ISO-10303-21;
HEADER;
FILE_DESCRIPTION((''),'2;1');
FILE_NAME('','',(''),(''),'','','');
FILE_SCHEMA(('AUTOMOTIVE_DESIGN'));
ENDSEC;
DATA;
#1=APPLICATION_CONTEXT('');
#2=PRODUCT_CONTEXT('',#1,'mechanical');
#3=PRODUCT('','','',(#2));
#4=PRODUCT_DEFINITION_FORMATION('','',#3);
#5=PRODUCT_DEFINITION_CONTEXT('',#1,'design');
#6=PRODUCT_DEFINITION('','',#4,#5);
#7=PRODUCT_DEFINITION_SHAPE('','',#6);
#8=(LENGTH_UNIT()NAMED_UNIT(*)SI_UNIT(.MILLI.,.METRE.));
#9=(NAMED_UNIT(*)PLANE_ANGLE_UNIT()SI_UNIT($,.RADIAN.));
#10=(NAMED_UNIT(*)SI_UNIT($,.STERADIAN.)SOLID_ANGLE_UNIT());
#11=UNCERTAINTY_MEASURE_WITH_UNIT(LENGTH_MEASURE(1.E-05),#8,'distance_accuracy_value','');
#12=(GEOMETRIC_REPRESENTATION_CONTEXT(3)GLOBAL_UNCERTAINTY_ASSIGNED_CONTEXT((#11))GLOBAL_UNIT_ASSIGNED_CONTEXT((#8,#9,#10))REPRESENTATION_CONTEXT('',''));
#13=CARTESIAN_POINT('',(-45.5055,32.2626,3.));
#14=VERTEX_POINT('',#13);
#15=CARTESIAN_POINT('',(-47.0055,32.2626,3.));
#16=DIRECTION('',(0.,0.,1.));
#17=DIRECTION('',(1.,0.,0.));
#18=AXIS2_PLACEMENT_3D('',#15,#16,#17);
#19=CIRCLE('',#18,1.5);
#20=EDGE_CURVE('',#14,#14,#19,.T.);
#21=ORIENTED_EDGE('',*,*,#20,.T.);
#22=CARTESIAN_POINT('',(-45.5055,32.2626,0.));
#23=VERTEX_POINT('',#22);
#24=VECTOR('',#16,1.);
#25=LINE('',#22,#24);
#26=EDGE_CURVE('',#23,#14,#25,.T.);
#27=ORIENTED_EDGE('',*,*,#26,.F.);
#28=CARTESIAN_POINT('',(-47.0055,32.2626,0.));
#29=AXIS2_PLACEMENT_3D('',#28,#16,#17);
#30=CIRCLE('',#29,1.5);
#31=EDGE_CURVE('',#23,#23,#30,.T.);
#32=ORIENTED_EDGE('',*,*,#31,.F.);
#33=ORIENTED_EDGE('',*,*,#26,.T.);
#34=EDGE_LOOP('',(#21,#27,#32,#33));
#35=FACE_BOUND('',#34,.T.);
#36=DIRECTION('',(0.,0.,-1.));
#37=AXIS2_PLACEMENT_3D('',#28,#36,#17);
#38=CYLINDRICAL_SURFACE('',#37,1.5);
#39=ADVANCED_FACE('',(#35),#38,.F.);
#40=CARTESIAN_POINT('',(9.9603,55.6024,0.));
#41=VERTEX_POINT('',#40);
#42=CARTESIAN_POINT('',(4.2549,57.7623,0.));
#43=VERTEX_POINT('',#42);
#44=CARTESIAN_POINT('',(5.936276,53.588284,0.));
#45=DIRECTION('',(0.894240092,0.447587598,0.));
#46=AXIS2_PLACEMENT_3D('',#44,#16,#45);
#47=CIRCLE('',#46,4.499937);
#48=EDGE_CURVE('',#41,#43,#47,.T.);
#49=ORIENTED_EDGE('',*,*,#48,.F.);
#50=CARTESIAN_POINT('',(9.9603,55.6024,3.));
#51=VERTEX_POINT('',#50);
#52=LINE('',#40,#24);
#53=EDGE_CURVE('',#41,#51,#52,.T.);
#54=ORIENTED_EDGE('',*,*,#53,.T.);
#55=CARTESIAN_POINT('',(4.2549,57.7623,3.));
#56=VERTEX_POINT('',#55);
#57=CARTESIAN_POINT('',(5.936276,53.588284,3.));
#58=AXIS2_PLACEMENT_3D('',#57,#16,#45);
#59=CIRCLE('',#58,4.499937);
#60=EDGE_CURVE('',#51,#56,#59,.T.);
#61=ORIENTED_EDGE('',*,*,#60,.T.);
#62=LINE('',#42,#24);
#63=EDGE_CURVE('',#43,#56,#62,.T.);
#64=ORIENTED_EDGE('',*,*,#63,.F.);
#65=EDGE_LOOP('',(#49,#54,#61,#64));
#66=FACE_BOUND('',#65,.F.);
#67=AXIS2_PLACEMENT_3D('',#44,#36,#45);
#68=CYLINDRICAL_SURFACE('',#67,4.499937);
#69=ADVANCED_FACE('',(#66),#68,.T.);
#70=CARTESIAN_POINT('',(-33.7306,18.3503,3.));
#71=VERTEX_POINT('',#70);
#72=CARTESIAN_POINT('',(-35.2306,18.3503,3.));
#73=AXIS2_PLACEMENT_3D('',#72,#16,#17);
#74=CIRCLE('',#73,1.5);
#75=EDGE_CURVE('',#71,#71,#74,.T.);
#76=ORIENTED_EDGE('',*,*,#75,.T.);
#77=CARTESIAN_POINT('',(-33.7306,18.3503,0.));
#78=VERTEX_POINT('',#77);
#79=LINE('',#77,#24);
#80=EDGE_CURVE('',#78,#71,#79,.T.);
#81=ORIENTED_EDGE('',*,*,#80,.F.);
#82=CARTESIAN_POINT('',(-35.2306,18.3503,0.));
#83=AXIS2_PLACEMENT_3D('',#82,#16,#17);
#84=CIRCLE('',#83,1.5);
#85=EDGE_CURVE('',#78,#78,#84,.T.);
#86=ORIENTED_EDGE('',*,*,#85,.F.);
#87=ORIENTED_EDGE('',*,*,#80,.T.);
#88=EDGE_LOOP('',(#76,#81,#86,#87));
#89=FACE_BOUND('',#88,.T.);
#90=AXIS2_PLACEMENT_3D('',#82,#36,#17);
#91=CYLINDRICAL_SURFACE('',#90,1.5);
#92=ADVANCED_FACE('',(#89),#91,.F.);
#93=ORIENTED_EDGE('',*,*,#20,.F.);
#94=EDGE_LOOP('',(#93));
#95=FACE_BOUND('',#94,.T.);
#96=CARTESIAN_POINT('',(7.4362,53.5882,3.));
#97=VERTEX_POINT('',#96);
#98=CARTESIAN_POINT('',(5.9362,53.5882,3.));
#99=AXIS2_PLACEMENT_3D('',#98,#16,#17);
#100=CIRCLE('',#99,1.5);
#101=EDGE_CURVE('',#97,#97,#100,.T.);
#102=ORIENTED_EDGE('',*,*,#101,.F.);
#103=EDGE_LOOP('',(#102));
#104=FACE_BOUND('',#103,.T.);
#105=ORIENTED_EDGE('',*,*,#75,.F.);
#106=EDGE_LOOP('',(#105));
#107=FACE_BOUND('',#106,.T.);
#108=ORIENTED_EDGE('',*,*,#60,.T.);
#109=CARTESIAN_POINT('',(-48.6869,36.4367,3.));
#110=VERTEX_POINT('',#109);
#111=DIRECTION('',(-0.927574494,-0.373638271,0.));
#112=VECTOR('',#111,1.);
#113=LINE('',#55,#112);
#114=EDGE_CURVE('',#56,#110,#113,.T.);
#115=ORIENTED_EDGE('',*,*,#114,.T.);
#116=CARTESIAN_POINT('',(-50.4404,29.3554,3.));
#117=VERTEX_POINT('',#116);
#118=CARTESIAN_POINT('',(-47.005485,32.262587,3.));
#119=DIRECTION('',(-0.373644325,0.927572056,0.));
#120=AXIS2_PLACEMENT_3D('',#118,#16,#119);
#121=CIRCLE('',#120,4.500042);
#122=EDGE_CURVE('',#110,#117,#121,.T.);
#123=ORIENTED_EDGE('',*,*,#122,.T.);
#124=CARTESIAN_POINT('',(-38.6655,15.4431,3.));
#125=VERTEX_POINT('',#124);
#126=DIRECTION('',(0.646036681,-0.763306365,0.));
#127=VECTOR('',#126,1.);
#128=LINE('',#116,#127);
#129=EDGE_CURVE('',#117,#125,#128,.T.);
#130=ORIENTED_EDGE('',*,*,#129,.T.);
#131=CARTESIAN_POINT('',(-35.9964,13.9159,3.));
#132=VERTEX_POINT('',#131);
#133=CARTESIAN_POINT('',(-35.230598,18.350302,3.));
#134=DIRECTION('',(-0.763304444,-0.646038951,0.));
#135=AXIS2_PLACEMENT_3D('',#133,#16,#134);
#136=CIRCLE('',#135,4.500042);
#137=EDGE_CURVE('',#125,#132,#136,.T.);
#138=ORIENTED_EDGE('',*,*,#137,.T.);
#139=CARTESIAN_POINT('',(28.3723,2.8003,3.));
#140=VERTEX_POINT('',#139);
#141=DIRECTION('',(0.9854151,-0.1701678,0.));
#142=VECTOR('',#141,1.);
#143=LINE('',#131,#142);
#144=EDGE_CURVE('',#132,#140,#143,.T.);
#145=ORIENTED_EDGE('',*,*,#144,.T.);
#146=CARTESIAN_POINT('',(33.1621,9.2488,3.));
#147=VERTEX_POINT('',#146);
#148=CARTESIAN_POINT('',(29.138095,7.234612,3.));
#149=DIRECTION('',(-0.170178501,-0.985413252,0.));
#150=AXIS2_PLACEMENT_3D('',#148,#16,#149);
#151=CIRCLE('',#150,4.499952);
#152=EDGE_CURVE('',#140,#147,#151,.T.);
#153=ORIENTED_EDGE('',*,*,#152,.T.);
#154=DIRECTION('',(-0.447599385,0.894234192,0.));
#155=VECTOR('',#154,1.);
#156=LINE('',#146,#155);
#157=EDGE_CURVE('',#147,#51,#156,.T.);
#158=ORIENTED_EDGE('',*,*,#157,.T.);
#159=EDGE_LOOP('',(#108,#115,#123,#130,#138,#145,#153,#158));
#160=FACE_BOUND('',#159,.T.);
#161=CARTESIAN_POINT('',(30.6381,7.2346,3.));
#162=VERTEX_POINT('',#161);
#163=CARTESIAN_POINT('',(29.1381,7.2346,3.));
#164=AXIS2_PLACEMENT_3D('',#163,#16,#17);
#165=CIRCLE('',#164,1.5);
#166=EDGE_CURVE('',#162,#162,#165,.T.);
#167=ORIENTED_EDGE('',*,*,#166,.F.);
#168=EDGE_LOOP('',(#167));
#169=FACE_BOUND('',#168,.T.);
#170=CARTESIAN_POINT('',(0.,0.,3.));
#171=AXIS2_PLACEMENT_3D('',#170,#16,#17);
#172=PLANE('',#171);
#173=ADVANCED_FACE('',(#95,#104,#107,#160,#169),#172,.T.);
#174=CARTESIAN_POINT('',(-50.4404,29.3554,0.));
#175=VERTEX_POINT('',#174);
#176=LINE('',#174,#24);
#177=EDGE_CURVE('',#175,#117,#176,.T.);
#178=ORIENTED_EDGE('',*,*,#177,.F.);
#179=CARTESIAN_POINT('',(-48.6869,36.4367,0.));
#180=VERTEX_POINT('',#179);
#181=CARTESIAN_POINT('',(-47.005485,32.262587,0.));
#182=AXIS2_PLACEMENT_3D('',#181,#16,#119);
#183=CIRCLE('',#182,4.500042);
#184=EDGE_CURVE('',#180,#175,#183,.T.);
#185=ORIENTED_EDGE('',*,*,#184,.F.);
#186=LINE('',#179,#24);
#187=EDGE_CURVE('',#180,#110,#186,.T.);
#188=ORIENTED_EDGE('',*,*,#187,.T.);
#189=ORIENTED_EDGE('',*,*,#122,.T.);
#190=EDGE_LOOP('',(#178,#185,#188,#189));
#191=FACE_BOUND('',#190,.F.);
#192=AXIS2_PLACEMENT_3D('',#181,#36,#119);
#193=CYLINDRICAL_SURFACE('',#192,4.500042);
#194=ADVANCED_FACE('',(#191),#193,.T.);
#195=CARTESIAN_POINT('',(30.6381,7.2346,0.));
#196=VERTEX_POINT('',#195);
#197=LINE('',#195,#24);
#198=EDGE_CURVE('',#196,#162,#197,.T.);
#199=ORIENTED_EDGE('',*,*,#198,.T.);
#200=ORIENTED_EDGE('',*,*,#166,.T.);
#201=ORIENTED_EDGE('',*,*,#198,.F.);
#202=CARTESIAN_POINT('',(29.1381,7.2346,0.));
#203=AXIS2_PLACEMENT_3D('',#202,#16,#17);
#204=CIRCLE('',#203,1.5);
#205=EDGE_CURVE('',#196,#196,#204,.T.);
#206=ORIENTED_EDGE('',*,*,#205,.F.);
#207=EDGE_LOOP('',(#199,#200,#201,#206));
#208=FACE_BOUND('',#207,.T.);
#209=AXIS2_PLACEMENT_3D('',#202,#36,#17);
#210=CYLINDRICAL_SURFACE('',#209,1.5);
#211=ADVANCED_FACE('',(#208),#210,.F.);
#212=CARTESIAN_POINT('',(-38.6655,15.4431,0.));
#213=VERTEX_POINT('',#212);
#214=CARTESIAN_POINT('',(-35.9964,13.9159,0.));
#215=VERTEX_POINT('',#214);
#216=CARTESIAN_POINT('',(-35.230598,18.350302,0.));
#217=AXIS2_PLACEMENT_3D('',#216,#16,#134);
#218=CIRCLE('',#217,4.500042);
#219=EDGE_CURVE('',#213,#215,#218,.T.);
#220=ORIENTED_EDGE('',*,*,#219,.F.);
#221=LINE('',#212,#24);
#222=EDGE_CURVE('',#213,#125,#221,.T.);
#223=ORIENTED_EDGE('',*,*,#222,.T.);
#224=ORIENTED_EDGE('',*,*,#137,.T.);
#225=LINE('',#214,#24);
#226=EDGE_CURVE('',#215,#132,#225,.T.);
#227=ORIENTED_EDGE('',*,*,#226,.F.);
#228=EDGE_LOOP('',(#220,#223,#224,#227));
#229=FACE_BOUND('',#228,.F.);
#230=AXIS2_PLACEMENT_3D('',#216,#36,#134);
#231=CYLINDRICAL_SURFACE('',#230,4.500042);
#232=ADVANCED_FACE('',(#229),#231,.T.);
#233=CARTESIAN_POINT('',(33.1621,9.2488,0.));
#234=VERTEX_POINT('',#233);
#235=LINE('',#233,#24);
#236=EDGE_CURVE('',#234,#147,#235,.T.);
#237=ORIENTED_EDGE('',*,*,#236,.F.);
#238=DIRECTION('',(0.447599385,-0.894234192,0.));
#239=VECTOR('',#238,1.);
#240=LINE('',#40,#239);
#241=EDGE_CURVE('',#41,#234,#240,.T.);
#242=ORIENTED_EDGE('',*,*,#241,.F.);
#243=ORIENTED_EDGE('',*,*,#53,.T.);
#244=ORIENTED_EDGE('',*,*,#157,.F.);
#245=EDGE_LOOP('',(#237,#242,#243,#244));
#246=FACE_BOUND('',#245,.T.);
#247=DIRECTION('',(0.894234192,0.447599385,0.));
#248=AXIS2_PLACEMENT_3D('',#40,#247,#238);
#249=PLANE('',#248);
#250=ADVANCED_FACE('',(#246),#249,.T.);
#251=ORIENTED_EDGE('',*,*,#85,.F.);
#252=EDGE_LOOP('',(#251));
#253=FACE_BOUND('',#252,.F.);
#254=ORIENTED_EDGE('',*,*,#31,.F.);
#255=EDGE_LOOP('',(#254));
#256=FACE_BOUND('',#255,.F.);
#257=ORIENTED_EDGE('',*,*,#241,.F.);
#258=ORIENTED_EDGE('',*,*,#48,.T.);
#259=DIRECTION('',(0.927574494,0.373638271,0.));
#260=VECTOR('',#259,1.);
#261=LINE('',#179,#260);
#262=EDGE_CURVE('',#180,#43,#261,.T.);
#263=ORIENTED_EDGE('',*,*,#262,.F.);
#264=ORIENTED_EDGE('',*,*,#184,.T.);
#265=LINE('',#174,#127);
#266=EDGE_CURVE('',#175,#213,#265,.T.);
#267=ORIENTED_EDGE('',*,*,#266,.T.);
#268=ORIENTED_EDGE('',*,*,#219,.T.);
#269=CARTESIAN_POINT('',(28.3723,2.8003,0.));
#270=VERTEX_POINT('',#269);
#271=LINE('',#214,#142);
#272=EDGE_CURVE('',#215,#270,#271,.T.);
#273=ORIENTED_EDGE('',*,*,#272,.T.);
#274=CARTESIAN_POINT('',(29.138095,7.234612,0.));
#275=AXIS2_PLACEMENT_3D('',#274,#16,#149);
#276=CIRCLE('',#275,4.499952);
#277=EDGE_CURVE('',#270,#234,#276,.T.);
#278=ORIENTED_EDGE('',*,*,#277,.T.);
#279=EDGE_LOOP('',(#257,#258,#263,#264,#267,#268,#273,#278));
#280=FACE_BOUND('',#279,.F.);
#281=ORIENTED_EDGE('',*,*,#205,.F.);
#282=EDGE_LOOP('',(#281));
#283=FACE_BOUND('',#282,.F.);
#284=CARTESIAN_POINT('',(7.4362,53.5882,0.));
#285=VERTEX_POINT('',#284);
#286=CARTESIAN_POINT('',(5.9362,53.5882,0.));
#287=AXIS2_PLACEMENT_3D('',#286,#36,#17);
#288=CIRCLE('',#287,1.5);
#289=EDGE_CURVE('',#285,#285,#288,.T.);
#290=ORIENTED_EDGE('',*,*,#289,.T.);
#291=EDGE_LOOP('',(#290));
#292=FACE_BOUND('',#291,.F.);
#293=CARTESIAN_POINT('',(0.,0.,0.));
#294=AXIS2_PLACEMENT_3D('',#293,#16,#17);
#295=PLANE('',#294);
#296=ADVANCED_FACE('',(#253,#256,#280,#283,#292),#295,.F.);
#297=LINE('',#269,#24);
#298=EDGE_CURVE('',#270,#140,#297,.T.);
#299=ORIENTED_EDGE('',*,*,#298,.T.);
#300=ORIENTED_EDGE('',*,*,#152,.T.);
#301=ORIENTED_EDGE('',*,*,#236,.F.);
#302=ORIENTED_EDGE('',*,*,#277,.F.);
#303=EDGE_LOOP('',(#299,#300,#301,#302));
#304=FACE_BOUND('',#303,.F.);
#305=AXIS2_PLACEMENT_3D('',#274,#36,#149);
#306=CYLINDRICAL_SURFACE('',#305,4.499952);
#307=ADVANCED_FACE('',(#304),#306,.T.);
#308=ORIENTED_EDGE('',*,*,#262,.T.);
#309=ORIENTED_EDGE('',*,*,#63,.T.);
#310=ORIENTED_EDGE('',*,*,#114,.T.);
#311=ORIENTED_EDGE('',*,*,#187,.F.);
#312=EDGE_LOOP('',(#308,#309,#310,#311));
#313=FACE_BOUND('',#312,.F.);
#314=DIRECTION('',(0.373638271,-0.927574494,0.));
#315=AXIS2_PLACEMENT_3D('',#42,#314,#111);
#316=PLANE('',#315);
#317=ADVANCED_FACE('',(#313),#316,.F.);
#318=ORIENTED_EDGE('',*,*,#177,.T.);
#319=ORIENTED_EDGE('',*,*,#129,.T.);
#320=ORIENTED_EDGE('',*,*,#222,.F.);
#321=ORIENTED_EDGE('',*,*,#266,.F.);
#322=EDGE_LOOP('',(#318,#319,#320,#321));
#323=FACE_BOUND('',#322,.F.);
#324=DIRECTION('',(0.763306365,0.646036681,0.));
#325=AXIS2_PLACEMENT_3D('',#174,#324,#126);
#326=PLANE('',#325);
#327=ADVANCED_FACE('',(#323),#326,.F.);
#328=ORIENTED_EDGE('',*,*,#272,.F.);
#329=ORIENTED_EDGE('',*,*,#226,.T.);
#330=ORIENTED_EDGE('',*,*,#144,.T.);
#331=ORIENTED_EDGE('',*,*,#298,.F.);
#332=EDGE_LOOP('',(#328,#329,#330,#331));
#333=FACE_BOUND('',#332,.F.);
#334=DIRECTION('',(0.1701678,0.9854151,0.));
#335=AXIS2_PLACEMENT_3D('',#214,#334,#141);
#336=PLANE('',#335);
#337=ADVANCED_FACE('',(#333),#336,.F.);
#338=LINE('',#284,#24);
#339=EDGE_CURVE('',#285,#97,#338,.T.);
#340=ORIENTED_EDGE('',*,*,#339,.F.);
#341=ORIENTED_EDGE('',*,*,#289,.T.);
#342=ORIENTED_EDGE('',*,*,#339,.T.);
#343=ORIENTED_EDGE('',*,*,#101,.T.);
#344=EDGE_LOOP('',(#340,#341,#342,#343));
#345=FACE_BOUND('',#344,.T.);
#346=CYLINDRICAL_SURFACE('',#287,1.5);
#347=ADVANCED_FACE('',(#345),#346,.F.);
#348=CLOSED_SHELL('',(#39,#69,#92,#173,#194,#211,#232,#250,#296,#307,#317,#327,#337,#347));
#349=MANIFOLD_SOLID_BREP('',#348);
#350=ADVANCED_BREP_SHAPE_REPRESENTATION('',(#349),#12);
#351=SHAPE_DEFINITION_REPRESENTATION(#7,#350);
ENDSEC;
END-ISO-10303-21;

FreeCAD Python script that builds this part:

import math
import FreeCAD as App
import Part
import Sketcher

V = App.Vector
Q = App.Units.Quantity

doc = App.newDocument("Part")
params = doc.addObject("Spreadsheet::Sheet", "Params")
for row, (alias, value) in enumerate([
    ("sketch1_diameter", "3 mm"),
    ("sketch1_radius", "4.5 mm"),
    ("pad1_length", "3 mm"),
], start=1):
    params.set(f"A{row}", alias)
    params.set(f"B{row}", "=" + value)
    params.setAlias(f"B{row}", alias)

body = doc.addObject("PartDesign::Body", "Body")

sketch1 = body.newObject("Sketcher::SketchObject", "Sketch")
sketch1.AttachmentSupport = (doc.getObject("XY_Plane"), [""])
sketch1.MapMode = "FlatFace"
sketch1.addGeometry(Part.LineSegment(V(4.3, 57.8, 0), V(-48.7, 36.4, 0)), False)
sketch1.addGeometry(Part.ArcOfCircle(Part.Circle(V(-47, 32.3, 0), V(0, 0, 1), 4.5), math.radians(112), math.radians(220)), False)
sketch1.addGeometry(Part.LineSegment(V(-50.4, 29.4, 0), V(-38.7, 15.4, 0)), False)
sketch1.addGeometry(Part.ArcOfCircle(Part.Circle(V(-35.2, 18.4, 0), V(0, 0, 1), 4.5), math.radians(-140), math.radians(-100)), False)
sketch1.addGeometry(Part.LineSegment(V(-36, 13.9, 0), V(28.4, 2.8, 0)), False)
sketch1.addGeometry(Part.ArcOfCircle(Part.Circle(V(29.1, 7.2, 0), V(0, 0, 1), 4.5), math.radians(-100), math.radians(27)), False)
sketch1.addGeometry(Part.LineSegment(V(33.2, 9.2, 0), V(10, 55.6, 0)), False)
sketch1.addGeometry(Part.ArcOfCircle(Part.Circle(V(5.9, 53.6, 0), V(0, 0, 1), 4.5), math.radians(27), math.radians(112)), False)
sketch1.addGeometry(Part.Circle(V(5.9, 53.6, 0), V(0, 0, 1), 1.5), False)
sketch1.addGeometry(Part.Circle(V(29.1, 7.2, 0), V(0, 0, 1), 1.5), False)
sketch1.addGeometry(Part.Circle(V(-35.2, 18.4, 0), V(0, 0, 1), 1.5), False)
sketch1.addGeometry(Part.Circle(V(-47, 32.3, 0), V(0, 0, 1), 1.5), False)
sketch1.addConstraint(Sketcher.Constraint("Tangent", 0, 2, 1, 1))
sketch1.addConstraint(Sketcher.Constraint("Tangent", 1, 2, 2, 1))
sketch1.addConstraint(Sketcher.Constraint("Tangent", 2, 2, 3, 1))
sketch1.addConstraint(Sketcher.Constraint("Tangent", 3, 2, 4, 1))
sketch1.addConstraint(Sketcher.Constraint("Tangent", 4, 2, 5, 1))
sketch1.addConstraint(Sketcher.Constraint("Tangent", 5, 2, 6, 1))
sketch1.addConstraint(Sketcher.Constraint("Tangent", 6, 2, 7, 1))
sketch1.addConstraint(Sketcher.Constraint("Tangent", 7, 2, 0, 1))
sketch1.addConstraint(Sketcher.Constraint("Coincident", 8, 3, 7, 3))
sketch1.addConstraint(Sketcher.Constraint("Coincident", 9, 3, 5, 3))
sketch1.addConstraint(Sketcher.Constraint("Coincident", 10, 3, 3, 3))
sketch1.addConstraint(Sketcher.Constraint("Coincident", 11, 3, 1, 3))
sketch1.addConstraint(Sketcher.Constraint("Equal", 1, 3))
sketch1.addConstraint(Sketcher.Constraint("Equal", 3, 5))
sketch1.addConstraint(Sketcher.Constraint("Equal", 5, 7))
sketch1.addConstraint(Sketcher.Constraint("Equal", 8, 9))
sketch1.addConstraint(Sketcher.Constraint("Equal", 9, 10))
sketch1.addConstraint(Sketcher.Constraint("Equal", 10, 11))
sketch1.addConstraint(Sketcher.Constraint("Diameter", 8, Q("3 mm")))
sketch1.addConstraint(Sketcher.Constraint("Radius", 1, Q("4.5 mm")))
sketch1.addConstraint(Sketcher.Constraint("Angle", 0, Q("-158.0598 deg")))
sketch1.addConstraint(Sketcher.Constraint("Angle", 6, Q("116.5898 deg")))
sketch1.addConstraint(Sketcher.Constraint("DistanceX", 1, 3, 2, 2, Q("8.34 mm")))
sketch1.addConstraint(Sketcher.Constraint("Distance", 6, Q("51.836 mm")))
sketch1.addConstraint(Sketcher.Constraint("DistanceX", -1, 1, 5, 3, Q("29.138 mm")))
sketch1.addConstraint(Sketcher.Constraint("DistanceX", 0, 2, -1, 1, Q("48.687 mm")))
sketch1.addConstraint(Sketcher.Constraint("DistanceY", -1, 1, 2, 2, Q("15.443 mm")))
sketch1.addConstraint(Sketcher.Constraint("DistanceY", -1, 1, 3, 2, Q("13.916 mm")))
sketch1.setExpression("Constraints[18]", "Params.sketch1_diameter")
sketch1.setExpression("Constraints[19]", "Params.sketch1_radius")
pad1 = body.newObject("PartDesign::Pad", "Pad")
pad1.Profile = sketch1
pad1.setExpression("Length", "Params.pad1_length")

doc.recompute()
